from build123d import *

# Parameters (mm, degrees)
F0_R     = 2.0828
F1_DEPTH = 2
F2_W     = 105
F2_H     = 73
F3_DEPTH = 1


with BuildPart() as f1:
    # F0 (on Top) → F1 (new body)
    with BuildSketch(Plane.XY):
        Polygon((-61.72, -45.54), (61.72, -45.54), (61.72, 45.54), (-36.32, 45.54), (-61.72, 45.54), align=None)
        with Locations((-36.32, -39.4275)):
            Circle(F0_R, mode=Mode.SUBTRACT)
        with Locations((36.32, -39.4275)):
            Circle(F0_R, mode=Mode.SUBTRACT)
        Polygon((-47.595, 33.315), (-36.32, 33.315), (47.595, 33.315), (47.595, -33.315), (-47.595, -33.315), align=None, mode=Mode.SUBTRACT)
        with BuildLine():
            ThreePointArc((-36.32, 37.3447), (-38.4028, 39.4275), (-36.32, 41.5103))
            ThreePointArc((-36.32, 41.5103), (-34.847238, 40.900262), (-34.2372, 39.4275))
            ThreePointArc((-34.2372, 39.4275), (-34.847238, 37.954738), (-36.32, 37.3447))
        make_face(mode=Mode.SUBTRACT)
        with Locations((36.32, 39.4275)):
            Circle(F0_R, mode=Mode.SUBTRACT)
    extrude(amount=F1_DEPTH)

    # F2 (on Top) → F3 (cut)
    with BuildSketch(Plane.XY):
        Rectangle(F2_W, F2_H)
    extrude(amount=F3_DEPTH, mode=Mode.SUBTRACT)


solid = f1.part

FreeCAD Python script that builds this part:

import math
import FreeCAD as App
import Part
import Sketcher
Q = App.Units.Quantity


def add_polygon(sketch, points):
    """Adds a closed chain of lines whose ends are joined by coincident constraints."""
    first, n = sketch.GeometryCount, len(points)
    for a, b in zip(points, points[1:] + points[:1]):
        sketch.addGeometry(Part.LineSegment(App.Vector(*a, 0), App.Vector(*b, 0)), False)
    for i in range(n):
        sketch.addConstraint(Sketcher.Constraint("Coincident", first + i, 2, first + (i + 1) % n, 1))

doc = App.newDocument("Part")
body = doc.addObject("PartDesign::Body", "Body")

# Sketch on XY plane
sketch1 = body.newObject("Sketcher::SketchObject", "Sketch")
sketch1.AttachmentSupport = (doc.getObject("XY_Plane"), [""])
sketch1.MapMode = "FlatFace"
add_polygon(sketch1, [(-61.7, -45.5), (61.7, -45.5), (61.7, 45.5), (-61.7, 45.5)])  # lines 0-3
sketch1.addGeometry(Part.Circle(App.Vector(-36.3, -39.4, 0), App.Vector(0, 0, 1), 2.1), False)  # 4
sketch1.addGeometry(Part.Circle(App.Vector(36.3, -39.4, 0), App.Vector(0, 0, 1), 2.1), False)  # 5
add_polygon(sketch1, [(-47.6, -33.3), (-47.6, 33.3), (47.6, 33.3), (47.6, -33.3)])  # lines 6-9
sketch1.addGeometry(Part.ArcOfCircle(Part.Circle(App.Vector(-36.3, 39.4, 0), App.Vector(0, 0, 1), 2.1), math.radians(-90), math.radians(0)), False)  # 10
sketch1.addGeometry(Part.ArcOfCircle(Part.Circle(App.Vector(-36.3, 39.4, 0), App.Vector(0, 0, 1), 2.1), math.radians(90), math.radians(270)), False)  # 11
sketch1.addGeometry(Part.ArcOfCircle(Part.Circle(App.Vector(-36.3, 39.4, 0), App.Vector(0, 0, 1), 2.1), math.radians(0), math.radians(90)), False)  # 12
sketch1.addGeometry(Part.Circle(App.Vector(36.3, 39.4, 0), App.Vector(0, 0, 1), 2.1), False)  # 13
sketch1.addConstraint([
    Sketcher.Constraint("Tangent", 10, 1, 11, 2),
    Sketcher.Constraint("Tangent", 11, 1, 12, 2),
    Sketcher.Constraint("Tangent", 12, 1, 10, 2),
    Sketcher.Constraint("Horizontal", 0),
    Sketcher.Constraint("Vertical", 1),
    Sketcher.Constraint("Horizontal", 2),
    Sketcher.Constraint("Vertical", 3),
    Sketcher.Constraint("Vertical", 6),
    Sketcher.Constraint("Horizontal", 7),
    Sketcher.Constraint("Vertical", 8),
    Sketcher.Constraint("Horizontal", 9),
    Sketcher.Constraint("Equal", 4, 5),
    Sketcher.Constraint("Equal", 5, 10),
    Sketcher.Constraint("Equal", 12, 13),
    Sketcher.Constraint("Symmetric", 5, 3, 10, 3, -1, 1),
    Sketcher.Constraint("Symmetric", 4, 3, 13, 3, -1, 1),
    Sketcher.Constraint("Symmetric", 0, 2, 2, 2, -1, 1),
    Sketcher.Constraint("Symmetric", 6, 2, 8, 2, -1, 1),
    Sketcher.Constraint("Symmetric", 4, 3, 5, 3, -2),
    Sketcher.Constraint("Horizontal", 13, 3, 12, 1),
    Sketcher.Constraint("Vertical", 12, 3, 10, 1),
    Sketcher.Constraint("Vertical", 10, 1, 11, 1),
    Sketcher.Constraint("Diameter", 4, Q("4.1656 mm")),
    Sketcher.Constraint("DistanceX", 0, 1, 0, 2, Q("123.44 mm")),
    Sketcher.Constraint("DistanceX", 7, 1, 7, 2, Q("95.19 mm")),
    Sketcher.Constraint("DistanceY", 1, 1, 1, 2, Q("91.08 mm")),
    Sketcher.Constraint("DistanceY", 6, 1, 6, 2, Q("66.63 mm")),
    Sketcher.Constraint("DistanceX", 5, 3, 0, 2, Q("25.4 mm")),
    Sketcher.Constraint("DistanceY", 4, 3, 10, 3, Q("78.855 mm")),
])
pad1 = body.newObject("PartDesign::Pad", "Pad")
pad1.Profile = sketch1
pad1.Length = 2

# Sketch on XY plane
sketch2 = body.newObject("Sketcher::SketchObject", "Sketch001")
sketch2.AttachmentSupport = (doc.getObject("XY_Plane"), [""])
sketch2.MapMode = "FlatFace"
add_polygon(sketch2, [(-52, 36), (-52, -36), (52, -36), (52, 36)])  # lines 0-3
sketch2.addConstraint([
    Sketcher.Constraint("Vertical", 0),
    Sketcher.Constraint("Horizontal", 1),
    Sketcher.Constraint("Vertical", 2),
    Sketcher.Constraint("Horizontal", 3),
    Sketcher.Constraint("Symmetric", 0, 2, 2, 2, -1, 1),
    Sketcher.Constraint("DistanceX", 1, 1, 1, 2, Q("105 mm")),
    Sketcher.Constraint("DistanceY", 0, 2, 0, 1, Q("73 mm")),
])
pocket1 = body.newObject("PartDesign::Pocket", "Pocket")
pocket1.Profile = sketch2
pocket1.Length = 1
pocket1.Reversed = True

doc.recompute()
